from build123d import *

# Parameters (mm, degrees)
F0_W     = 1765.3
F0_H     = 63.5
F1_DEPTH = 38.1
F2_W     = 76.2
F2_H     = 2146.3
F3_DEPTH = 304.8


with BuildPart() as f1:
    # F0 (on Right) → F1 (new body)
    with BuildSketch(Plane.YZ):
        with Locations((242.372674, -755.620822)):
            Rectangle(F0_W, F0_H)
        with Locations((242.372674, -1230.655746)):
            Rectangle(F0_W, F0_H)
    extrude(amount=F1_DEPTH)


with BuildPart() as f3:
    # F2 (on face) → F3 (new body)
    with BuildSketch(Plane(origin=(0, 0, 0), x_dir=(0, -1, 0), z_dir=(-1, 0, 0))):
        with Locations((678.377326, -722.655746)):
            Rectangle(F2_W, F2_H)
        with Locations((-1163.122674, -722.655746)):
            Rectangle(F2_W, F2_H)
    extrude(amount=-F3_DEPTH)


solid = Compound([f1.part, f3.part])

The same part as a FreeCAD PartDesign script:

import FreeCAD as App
import Part
import Sketcher

V = App.Vector
Q = App.Units.Quantity

doc = App.newDocument("Part")
body = doc.addObject("PartDesign::Body", "Body")
body.AllowCompound = True

# Sketch on YZ plane
sketch1 = body.newObject("Sketcher::SketchObject", "Sketch")
sketch1.AttachmentSupport = (doc.getObject("YZ_Plane"), [""])
sketch1.MapMode = "FlatFace"
sketch1.addGeometry(Part.LineSegment(V(-640, -724, 0), V(-640, -787, 0)), False)
sketch1.addGeometry(Part.LineSegment(V(-640, -787, 0), V(1125, -787, 0)), False)
sketch1.addGeometry(Part.LineSegment(V(1125, -787, 0), V(1125, -724, 0)), False)
sketch1.addGeometry(Part.LineSegment(V(1125, -724, 0), V(-640, -724, 0)), False)
sketch1.addGeometry(Part.LineSegment(V(-640, -1199, 0), V(-640, -1262, 0)), False)
sketch1.addGeometry(Part.LineSegment(V(-640, -1262, 0), V(1125, -1262, 0)), False)
sketch1.addGeometry(Part.LineSegment(V(1125, -1262, 0), V(1125, -1199, 0)), False)
sketch1.addGeometry(Part.LineSegment(V(1125, -1199, 0), V(-640, -1199, 0)), False)
sketch1.addConstraint(Sketcher.Constraint("Coincident", 0, 2, 1, 1))
sketch1.addConstraint(Sketcher.Constraint("Coincident", 1, 2, 2, 1))
sketch1.addConstraint(Sketcher.Constraint("Coincident", 2, 2, 3, 1))
sketch1.addConstraint(Sketcher.Constraint("Coincident", 3, 2, 0, 1))
sketch1.addConstraint(Sketcher.Constraint("Coincident", 4, 2, 5, 1))
sketch1.addConstraint(Sketcher.Constraint("Coincident", 5, 2, 6, 1))
sketch1.addConstraint(Sketcher.Constraint("Coincident", 6, 2, 7, 1))
sketch1.addConstraint(Sketcher.Constraint("Coincident", 7, 2, 4, 1))
sketch1.addConstraint(Sketcher.Constraint("Vertical", 0))
sketch1.addConstraint(Sketcher.Constraint("Horizontal", 1))
sketch1.addConstraint(Sketcher.Constraint("Vertical", 2))
sketch1.addConstraint(Sketcher.Constraint("Horizontal", 3))
sketch1.addConstraint(Sketcher.Constraint("Vertical", 4))
sketch1.addConstraint(Sketcher.Constraint("Horizontal", 5))
sketch1.addConstraint(Sketcher.Constraint("Vertical", 6))
sketch1.addConstraint(Sketcher.Constraint("Horizontal", 7))
sketch1.addConstraint(Sketcher.Constraint("Vertical", 3, 2, 4, 2))
sketch1.addConstraint(Sketcher.Constraint("Vertical", 2, 2, 5, 2))
sketch1.addConstraint(Sketcher.Constraint("Equal", 2, 4))
sketch1.addConstraint(Sketcher.Constraint("DistanceX", 1, 1, 1, 2, Q("69.5 in")))
sketch1.addConstraint(Sketcher.Constraint("DistanceY", 0, 2, 0, 1, Q("2.5 in")))
sketch1.addConstraint(Sketcher.Constraint("DistanceY", 0, 2, -1, 1, Q("787.370822 mm")))
sketch1.addConstraint(Sketcher.Constraint("DistanceX", 0, 2, -1, 1, Q("640.277326 mm")))
sketch1.addConstraint(Sketcher.Constraint("DistanceY", 4, 2, -1, 1, Q("1262.405746 mm")))
pad1 = body.newObject("PartDesign::Pad", "Pad")
pad1.Profile = sketch1
pad1.Length = Q("1.5 in")
body2 = doc.addObject("PartDesign::Body", "Body001")
body2.AllowCompound = True

# Sketch on YZ plane
sketch2 = body2.newObject("Sketcher::SketchObject", "Sketch001")
sketch2.AttachmentSupport = (doc.getObject("YZ_Plane001"), [""])
sketch2.MapMode = "FlatFace"
sketch2.addGeometry(Part.LineSegment(V(-640, 350, 0), V(-640, -1796, 0)), False)
sketch2.addGeometry(Part.LineSegment(V(-640, -1796, 0), V(-716, -1796, 0)), False)
sketch2.addGeometry(Part.LineSegment(V(-716, -1796, 0), V(-716, 350, 0)), False)
sketch2.addGeometry(Part.LineSegment(V(-716, 350, 0), V(-640, 350, 0)), False)
sketch2.addGeometry(Part.LineSegment(V(1201, 350, 0), V(1201, -1796, 0)), False)
sketch2.addGeometry(Part.LineSegment(V(1201, -1796, 0), V(1125, -1796, 0)), False)
sketch2.addGeometry(Part.LineSegment(V(1125, -1796, 0), V(1125, 350, 0)), False)
sketch2.addGeometry(Part.LineSegment(V(1125, 350, 0), V(1201, 350, 0)), False)
sketch2.addConstraint(Sketcher.Constraint("Coincident", 0, 2, 1, 1))
sketch2.addConstraint(Sketcher.Constraint("Coincident", 1, 2, 2, 1))
sketch2.addConstraint(Sketcher.Constraint("Coincident", 2, 2, 3, 1))
sketch2.addConstraint(Sketcher.Constraint("Coincident", 3, 2, 0, 1))
sketch2.addConstraint(Sketcher.Constraint("Coincident", 4, 2, 5, 1))
sketch2.addConstraint(Sketcher.Constraint("Coincident", 5, 2, 6, 1))
sketch2.addConstraint(Sketcher.Constraint("Coincident", 6, 2, 7, 1))
sketch2.addConstraint(Sketcher.Constraint("Coincident", 7, 2, 4, 1))
sketch2.addConstraint(Sketcher.Constraint("Vertical", 0))
sketch2.addConstraint(Sketcher.Constraint("Horizontal", 1))
sketch2.addConstraint(Sketcher.Constraint("Vertical", 2))
sketch2.addConstraint(Sketcher.Constraint("Horizontal", 3))
sketch2.addConstraint(Sketcher.Constraint("Vertical", 4))
sketch2.addConstraint(Sketcher.Constraint("Horizontal", 5))
sketch2.addConstraint(Sketcher.Constraint("Vertical", 6))
sketch2.addConstraint(Sketcher.Constraint("Horizontal", 7))
sketch2.addConstraint(Sketcher.Constraint("Horizontal", 1, 2, 4, 2))
sketch2.addConstraint(Sketcher.Constraint("Horizontal", 3, 2, 6, 2))
sketch2.addConstraint(Sketcher.Constraint("Equal", 3, 5))
sketch2.addConstraint(Sketcher.Constraint("DistanceX", 1, 2, 1, 1, Q("3 in")))
sketch2.addConstraint(Sketcher.Constraint("DistanceY", 0, 2, 0, 1, Q("84.5 in")))
sketch2.addConstraint(Sketcher.Constraint("DistanceX", 0, 2, 4, 2, Q("72.5 in")))
sketch2.addConstraint(Sketcher.Constraint("DistanceX", 0, 2, -1, 1, Q("640.277326 mm")))
sketch2.addConstraint(Sketcher.Constraint("DistanceY", 0, 2, -1, 1, Q("1795.805746 mm")))
pad2 = body2.newObject("PartDesign::Pad", "Pad001")
pad2.Profile = sketch2
pad2.Length = Q("12 in")

doc.recompute()
